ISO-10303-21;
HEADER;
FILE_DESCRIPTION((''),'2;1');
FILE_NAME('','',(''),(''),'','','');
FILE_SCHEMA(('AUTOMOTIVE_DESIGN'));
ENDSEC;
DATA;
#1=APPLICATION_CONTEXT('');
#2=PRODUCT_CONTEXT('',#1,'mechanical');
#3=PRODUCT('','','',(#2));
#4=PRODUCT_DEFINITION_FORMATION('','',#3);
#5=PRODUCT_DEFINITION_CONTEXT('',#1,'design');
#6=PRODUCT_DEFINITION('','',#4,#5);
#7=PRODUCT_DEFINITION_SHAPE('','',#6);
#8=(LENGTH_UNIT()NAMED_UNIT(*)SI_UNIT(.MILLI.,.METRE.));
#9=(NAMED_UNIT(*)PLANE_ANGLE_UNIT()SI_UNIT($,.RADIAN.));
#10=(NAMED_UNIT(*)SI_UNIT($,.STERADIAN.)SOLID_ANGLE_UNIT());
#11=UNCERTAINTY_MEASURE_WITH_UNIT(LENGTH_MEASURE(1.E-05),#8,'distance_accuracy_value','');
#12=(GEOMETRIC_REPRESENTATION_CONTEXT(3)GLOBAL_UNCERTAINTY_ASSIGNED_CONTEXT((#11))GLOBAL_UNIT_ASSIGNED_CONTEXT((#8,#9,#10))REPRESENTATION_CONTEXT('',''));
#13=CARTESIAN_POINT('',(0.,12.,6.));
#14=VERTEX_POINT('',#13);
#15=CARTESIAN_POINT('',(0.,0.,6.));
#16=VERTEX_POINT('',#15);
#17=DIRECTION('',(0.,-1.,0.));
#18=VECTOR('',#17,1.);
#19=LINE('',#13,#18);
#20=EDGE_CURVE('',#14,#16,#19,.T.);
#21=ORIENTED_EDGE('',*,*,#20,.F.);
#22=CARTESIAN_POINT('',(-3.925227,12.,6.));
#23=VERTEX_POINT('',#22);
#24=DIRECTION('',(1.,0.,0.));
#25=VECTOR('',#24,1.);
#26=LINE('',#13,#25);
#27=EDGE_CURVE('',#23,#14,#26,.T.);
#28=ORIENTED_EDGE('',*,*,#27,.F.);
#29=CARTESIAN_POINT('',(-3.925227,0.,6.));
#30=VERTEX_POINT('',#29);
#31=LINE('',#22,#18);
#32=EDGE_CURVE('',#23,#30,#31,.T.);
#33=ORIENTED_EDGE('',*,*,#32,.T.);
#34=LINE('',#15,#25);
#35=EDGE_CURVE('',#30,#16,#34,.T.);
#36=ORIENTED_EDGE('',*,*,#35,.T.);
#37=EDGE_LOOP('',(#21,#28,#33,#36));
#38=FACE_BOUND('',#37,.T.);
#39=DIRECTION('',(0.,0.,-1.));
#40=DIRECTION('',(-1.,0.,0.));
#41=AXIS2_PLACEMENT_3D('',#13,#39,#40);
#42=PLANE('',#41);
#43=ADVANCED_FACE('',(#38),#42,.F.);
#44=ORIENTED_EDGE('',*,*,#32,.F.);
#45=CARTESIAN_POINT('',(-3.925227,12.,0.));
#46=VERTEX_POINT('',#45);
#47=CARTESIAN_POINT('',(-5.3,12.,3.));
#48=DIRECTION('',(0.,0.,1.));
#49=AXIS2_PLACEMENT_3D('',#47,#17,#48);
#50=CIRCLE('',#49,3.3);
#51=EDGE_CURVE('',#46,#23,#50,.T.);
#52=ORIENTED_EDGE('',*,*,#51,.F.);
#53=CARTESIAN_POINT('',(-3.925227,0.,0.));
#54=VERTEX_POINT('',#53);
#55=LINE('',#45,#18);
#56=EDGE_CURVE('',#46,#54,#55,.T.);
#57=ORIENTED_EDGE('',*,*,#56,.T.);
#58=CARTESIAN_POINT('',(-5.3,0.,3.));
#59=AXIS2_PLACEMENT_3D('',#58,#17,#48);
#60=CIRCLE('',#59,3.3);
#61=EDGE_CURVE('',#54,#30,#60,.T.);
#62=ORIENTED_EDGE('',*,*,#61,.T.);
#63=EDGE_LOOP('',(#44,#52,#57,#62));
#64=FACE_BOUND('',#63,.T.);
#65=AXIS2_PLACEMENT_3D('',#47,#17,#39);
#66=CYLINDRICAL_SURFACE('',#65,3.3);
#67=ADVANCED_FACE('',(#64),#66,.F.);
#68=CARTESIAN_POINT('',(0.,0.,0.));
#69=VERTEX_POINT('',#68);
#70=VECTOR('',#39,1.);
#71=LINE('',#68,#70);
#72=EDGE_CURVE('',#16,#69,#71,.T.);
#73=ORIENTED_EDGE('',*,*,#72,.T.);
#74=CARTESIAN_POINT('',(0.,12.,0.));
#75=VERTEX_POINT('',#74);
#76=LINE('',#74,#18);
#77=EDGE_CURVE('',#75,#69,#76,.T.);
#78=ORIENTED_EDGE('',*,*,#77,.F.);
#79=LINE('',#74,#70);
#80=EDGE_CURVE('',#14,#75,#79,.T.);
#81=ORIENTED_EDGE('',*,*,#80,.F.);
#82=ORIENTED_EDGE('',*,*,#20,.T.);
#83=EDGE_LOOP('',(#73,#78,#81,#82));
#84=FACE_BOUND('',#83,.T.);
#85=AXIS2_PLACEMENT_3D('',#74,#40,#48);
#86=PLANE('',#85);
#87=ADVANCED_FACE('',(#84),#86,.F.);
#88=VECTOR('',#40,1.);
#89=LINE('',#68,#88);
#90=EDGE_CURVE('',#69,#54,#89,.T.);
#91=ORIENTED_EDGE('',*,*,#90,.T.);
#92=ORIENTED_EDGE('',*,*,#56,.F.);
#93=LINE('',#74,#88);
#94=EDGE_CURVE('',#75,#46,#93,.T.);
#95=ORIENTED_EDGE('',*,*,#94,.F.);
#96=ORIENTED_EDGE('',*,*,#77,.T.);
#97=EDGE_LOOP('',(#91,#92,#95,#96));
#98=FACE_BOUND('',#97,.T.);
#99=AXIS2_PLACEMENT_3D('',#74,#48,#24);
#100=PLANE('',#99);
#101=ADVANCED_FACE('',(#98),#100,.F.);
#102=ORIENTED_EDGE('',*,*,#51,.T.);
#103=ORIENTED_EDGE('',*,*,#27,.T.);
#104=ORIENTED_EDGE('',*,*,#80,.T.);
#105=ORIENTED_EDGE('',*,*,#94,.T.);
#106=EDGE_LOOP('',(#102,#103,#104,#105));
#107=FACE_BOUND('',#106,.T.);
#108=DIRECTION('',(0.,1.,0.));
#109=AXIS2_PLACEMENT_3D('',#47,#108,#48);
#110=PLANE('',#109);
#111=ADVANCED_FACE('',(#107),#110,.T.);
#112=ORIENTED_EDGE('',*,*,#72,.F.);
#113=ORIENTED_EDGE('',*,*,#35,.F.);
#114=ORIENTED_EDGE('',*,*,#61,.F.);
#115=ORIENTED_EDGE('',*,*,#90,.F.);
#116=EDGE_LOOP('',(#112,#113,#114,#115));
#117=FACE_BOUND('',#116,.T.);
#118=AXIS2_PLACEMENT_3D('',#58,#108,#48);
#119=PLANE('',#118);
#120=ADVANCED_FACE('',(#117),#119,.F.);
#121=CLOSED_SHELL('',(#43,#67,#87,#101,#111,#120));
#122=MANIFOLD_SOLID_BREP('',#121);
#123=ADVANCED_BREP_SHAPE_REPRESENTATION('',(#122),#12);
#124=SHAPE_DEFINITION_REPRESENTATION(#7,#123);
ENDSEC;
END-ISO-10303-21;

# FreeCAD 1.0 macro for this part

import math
import FreeCAD as App
import Part
import Sketcher
from FreeCAD import Vector

doc = App.newDocument("Part")
params = doc.addObject("Spreadsheet::Sheet", "Params")
for row, (alias, value) in enumerate([
    ("sketch1_radius", "3.3 mm"),
    ("sketch1_height", "6 mm"),
    ("pad1_length", "12 mm"),
], start=1):
    params.set(f"A{row}", alias)
    params.set(f"B{row}", "=" + value)
    params.setAlias(f"B{row}", alias)

body = doc.addObject("PartDesign::Body", "Body")

# Sketch on XZ plane
sketch1 = doc.addObject("Sketcher::SketchObject", "Sketch")
body.addObject(sketch1)
sketch1.AttachmentSupport = (doc.XZ_Plane, [""])
sketch1.MapMode = "FlatFace"
sketch1.addGeometry([
    Part.LineSegment(Vector(0, 6, 0), Vector(0, 0, 0)),
    Part.LineSegment(Vector(0, 0, 0), Vector(-3.925227, 0, 0)),
    Part.ArcOfCircle(Part.Circle(Vector(-5.3, 3, 0), Vector(0, 0, 1), 3.3), math.radians(-65.380023), math.radians(65.380023)),
    Part.LineSegment(Vector(-3.925227, 6, 0), Vector(0, 6, 0)),
], False)
sketch1.addConstraint([
    Sketcher.Constraint("Coincident", 0, 2, 1, 1),
    Sketcher.Constraint("Coincident", 1, 2, 2, 1),
    Sketcher.Constraint("Coincident", 2, 2, 3, 1),
    Sketcher.Constraint("Coincident", 3, 2, 0, 1),
    Sketcher.Constraint("Vertical", 0),
    Sketcher.Constraint("Horizontal", 1),
    Sketcher.Constraint("Horizontal", 3),
    Sketcher.Constraint("Coincident", 0, 2, -1, 1),
    Sketcher.Constraint("Vertical", 1, 2, 2, 2),
    Sketcher.Constraint("Radius", 2, 3.3),
    Sketcher.Constraint("DistanceY", 0, 2, 0, 1, 6.0),
    Sketcher.Constraint("DistanceX", 2, 3, -1, 1, 5.3),
])
sketch1.setExpression("Constraints[9]", "Params.sketch1_radius")
sketch1.setExpression("Constraints[10]", "Params.sketch1_height")
pad1 = doc.addObject("PartDesign::Pad", "Pad")
body.addObject(pad1)
pad1.Profile = sketch1
pad1.setExpression("Length", "Params.pad1_length")
pad1.Reversed = True

doc.recompute()
